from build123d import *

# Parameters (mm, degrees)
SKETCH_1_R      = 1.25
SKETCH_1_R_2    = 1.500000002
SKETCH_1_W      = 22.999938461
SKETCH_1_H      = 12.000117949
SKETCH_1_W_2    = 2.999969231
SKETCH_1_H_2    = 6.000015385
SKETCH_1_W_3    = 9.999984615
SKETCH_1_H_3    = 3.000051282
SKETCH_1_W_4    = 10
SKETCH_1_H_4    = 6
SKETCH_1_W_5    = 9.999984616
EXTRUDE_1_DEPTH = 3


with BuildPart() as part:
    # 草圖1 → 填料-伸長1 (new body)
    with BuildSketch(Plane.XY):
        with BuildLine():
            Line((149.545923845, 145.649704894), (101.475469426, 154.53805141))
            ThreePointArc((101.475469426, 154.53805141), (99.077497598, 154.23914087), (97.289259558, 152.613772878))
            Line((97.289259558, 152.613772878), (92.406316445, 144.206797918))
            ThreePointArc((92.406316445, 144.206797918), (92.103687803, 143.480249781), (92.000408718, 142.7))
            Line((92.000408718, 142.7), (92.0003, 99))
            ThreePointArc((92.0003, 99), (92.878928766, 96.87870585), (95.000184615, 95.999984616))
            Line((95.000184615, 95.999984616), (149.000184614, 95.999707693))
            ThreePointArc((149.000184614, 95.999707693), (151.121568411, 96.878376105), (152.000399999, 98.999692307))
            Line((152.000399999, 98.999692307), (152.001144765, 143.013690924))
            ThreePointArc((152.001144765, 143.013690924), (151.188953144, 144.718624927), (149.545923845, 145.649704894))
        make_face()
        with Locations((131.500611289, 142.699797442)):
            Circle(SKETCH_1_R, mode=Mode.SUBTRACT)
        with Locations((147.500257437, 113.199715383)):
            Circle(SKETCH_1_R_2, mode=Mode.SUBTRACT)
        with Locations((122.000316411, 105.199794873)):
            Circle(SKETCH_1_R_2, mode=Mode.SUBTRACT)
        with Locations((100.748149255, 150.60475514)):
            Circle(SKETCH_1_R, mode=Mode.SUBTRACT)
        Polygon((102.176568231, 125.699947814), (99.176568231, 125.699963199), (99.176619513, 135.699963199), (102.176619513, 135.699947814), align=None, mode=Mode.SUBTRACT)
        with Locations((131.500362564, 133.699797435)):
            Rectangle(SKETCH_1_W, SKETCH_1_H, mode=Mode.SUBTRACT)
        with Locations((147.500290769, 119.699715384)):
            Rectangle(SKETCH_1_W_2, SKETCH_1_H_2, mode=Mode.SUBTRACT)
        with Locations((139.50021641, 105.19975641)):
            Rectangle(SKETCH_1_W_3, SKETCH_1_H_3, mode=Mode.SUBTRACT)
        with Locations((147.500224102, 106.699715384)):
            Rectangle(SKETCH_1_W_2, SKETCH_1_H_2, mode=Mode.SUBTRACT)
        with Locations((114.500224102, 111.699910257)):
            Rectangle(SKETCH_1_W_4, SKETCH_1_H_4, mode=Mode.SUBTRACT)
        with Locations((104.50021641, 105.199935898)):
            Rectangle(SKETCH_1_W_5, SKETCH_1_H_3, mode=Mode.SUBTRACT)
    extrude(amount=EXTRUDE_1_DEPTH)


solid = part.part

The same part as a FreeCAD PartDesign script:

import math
import FreeCAD as App
import Part
import Sketcher
from FreeCAD import Vector
Q = App.Units.Quantity

doc = App.newDocument("Part")
body = doc.addObject("PartDesign::Body", "Body")

sketch1 = doc.addObject("Sketcher::SketchObject", "Sketch")
body.addObject(sketch1)
sketch1.AttachmentSupport = (doc.XY_Plane, [""])
sketch1.MapMode = "FlatFace"
sketch1.addGeometry([
    Part.LineSegment(Vector(149.5, 145.6, 0), Vector(101.5, 154.5, 0)),
    Part.ArcOfCircle(Part.Circle(Vector(100.7, 150.6, 0), Vector(0, 0, 1), 4), math.radians(80), math.radians(150)),
    Part.LineSegment(Vector(97.3, 152.6, 0), Vector(92.4, 144.2, 0)),
    Part.ArcOfCircle(Part.Circle(Vector(95, 142.7, 0), Vector(0, 0, 1), 3), math.radians(150), math.radians(180)),
    Part.LineSegment(Vector(92, 142.7, 0), Vector(92, 99, 0)),
    Part.ArcOfCircle(Part.Circle(Vector(95, 99, 0), Vector(0, 0, 1), 3), math.radians(180), math.radians(270)),
    Part.LineSegment(Vector(95, 96, 0), Vector(149, 96, 0)),
    Part.ArcOfCircle(Part.Circle(Vector(149, 99, 0), Vector(0, 0, 1), 3), math.radians(-90), math.radians(0)),
    Part.LineSegment(Vector(152, 99, 0), Vector(152, 143, 0)),
    Part.ArcOfCircle(Part.Circle(Vector(148.9, 142.6, 0), Vector(0, 0, 1), 3.1), math.radians(8), math.radians(78)),
    Part.LineSegment(Vector(109.5, 103.7, 0), Vector(99.5, 103.7, 0)),
    Part.LineSegment(Vector(99.5, 103.7, 0), Vector(99.5, 106.7, 0)),
    Part.LineSegment(Vector(99.5, 106.7, 0), Vector(109.5, 106.7, 0)),
    Part.LineSegment(Vector(109.5, 106.7, 0), Vector(109.5, 103.7, 0)),
    Part.Circle(Vector(122, 105.2, 0), Vector(0, 0, 1), 1.5),
    Part.LineSegment(Vector(119.5, 108.7, 0), Vector(109.5, 108.7, 0)),
    Part.LineSegment(Vector(109.5, 108.7, 0), Vector(109.5, 114.7, 0)),
    Part.LineSegment(Vector(109.5, 114.7, 0), Vector(119.5, 114.7, 0)),
    Part.LineSegment(Vector(119.5, 114.7, 0), Vector(119.5, 108.7, 0)),
    Part.LineSegment(Vector(144.5, 103.7, 0), Vector(134.5, 103.7, 0)),
    Part.LineSegment(Vector(134.5, 103.7, 0), Vector(134.5, 106.7, 0)),
    Part.LineSegment(Vector(134.5, 106.7, 0), Vector(144.5, 106.7, 0)),
    Part.LineSegment(Vector(144.5, 106.7, 0), Vector(144.5, 103.7, 0)),
    Part.LineSegment(Vector(149, 103.7, 0), Vector(146, 103.7, 0)),
    Part.LineSegment(Vector(146, 103.7, 0), Vector(146, 109.7, 0)),
    Part.LineSegment(Vector(146, 109.7, 0), Vector(149, 109.7, 0)),
    Part.LineSegment(Vector(149, 109.7, 0), Vector(149, 103.7, 0)),
    Part.Circle(Vector(147.5, 113.2, 0), Vector(0, 0, 1), 1.5),
    Part.LineSegment(Vector(149, 116.7, 0), Vector(146, 116.7, 0)),
    Part.LineSegment(Vector(146, 116.7, 0), Vector(146, 122.7, 0)),
    Part.LineSegment(Vector(146, 122.7, 0), Vector(149, 122.7, 0)),
    Part.LineSegment(Vector(149, 122.7, 0), Vector(149, 116.7, 0)),
    Part.LineSegment(Vector(102.2, 135.7, 0), Vector(102.2, 125.7, 0)),
    Part.LineSegment(Vector(102.2, 125.7, 0), Vector(99.2, 125.7, 0)),
    Part.LineSegment(Vector(99.2, 125.7, 0), Vector(99.2, 135.7, 0)),
    Part.LineSegment(Vector(99.2, 135.7, 0), Vector(102.2, 135.7, 0)),
    Part.Circle(Vector(100.7, 150.6, 0), Vector(0, 0, 1), 1.2),
    Part.LineSegment(Vector(143, 127.7, 0), Vector(120, 127.7, 0)),
    Part.LineSegment(Vector(120, 127.7, 0), Vector(120, 139.7, 0)),
    Part.LineSegment(Vector(120, 139.7, 0), Vector(143, 139.7, 0)),
    Part.LineSegment(Vector(143, 139.7, 0), Vector(143, 127.7, 0)),
    Part.Circle(Vector(131.5, 142.7, 0), Vector(0, 0, 1), 1.2),
], False)
sketch1.addConstraint([
    Sketcher.Constraint("Coincident", 0, 2, 1, 1),
    Sketcher.Constraint("Coincident", 1, 2, 2, 1),
    Sketcher.Constraint("Coincident", 2, 2, 3, 1),
    Sketcher.Constraint("Coincident", 3, 2, 4, 1),
    Sketcher.Constraint("Coincident", 4, 2, 5, 1),
    Sketcher.Constraint("Coincident", 5, 2, 6, 1),
    Sketcher.Constraint("Coincident", 6, 2, 7, 1),
    Sketcher.Constraint("Coincident", 7, 2, 8, 1),
    Sketcher.Constraint("Coincident", 8, 2, 9, 1),
    Sketcher.Constraint("Coincident", 9, 2, 0, 1),
    Sketcher.Constraint("Coincident", 10, 2, 11, 1),
    Sketcher.Constraint("Coincident", 11, 2, 12, 1),
    Sketcher.Constraint("Coincident", 12, 2, 13, 1),
    Sketcher.Constraint("Coincident", 13, 2, 10, 1),
    Sketcher.Constraint("Coincident", 15, 2, 16, 1),
    Sketcher.Constraint("Coincident", 16, 2, 17, 1),
    Sketcher.Constraint("Coincident", 17, 2, 18, 1),
    Sketcher.Constraint("Coincident", 18, 2, 15, 1),
    Sketcher.Constraint("Coincident", 19, 2, 20, 1),
    Sketcher.Constraint("Coincident", 20, 2, 21, 1),
    Sketcher.Constraint("Coincident", 21, 2, 22, 1),
    Sketcher.Constraint("Coincident", 22, 2, 19, 1),
    Sketcher.Constraint("Coincident", 23, 2, 24, 1),
    Sketcher.Constraint("Coincident", 24, 2, 25, 1),
    Sketcher.Constraint("Coincident", 25, 2, 26, 1),
    Sketcher.Constraint("Coincident", 26, 2, 23, 1),
    Sketcher.Constraint("Coincident", 28, 2, 29, 1),
    Sketcher.Constraint("Coincident", 29, 2, 30, 1),
    Sketcher.Constraint("Coincident", 30, 2, 31, 1),
    Sketcher.Constraint("Coincident", 31, 2, 28, 1),
    Sketcher.Constraint("Coincident", 32, 2, 33, 1),
    Sketcher.Constraint("Coincident", 33, 2, 34, 1),
    Sketcher.Constraint("Coincident", 34, 2, 35, 1),
    Sketcher.Constraint("Coincident", 35, 2, 32, 1),
    Sketcher.Constraint("Coincident", 37, 2, 38, 1),
    Sketcher.Constraint("Coincident", 38, 2, 39, 1),
    Sketcher.Constraint("Coincident", 39, 2, 40, 1),
    Sketcher.Constraint("Coincident", 40, 2, 37, 1),
    Sketcher.Constraint("Horizontal", 10),
    Sketcher.Constraint("Vertical", 11),
    Sketcher.Constraint("Horizontal", 12),
    Sketcher.Constraint("Vertical", 13),
    Sketcher.Constraint("Horizontal", 15),
    Sketcher.Constraint("Vertical", 16),
    Sketcher.Constraint("Horizontal", 17),
    Sketcher.Constraint("Vertical", 18),
    Sketcher.Constraint("Horizontal", 19),
    Sketcher.Constraint("Vertical", 20),
    Sketcher.Constraint("Horizontal", 21),
    Sketcher.Constraint("Vertical", 22),
    Sketcher.Constraint("Horizontal", 23),
    Sketcher.Constraint("Vertical", 24),
    Sketcher.Constraint("Horizontal", 25),
    Sketcher.Constraint("Vertical", 26),
    Sketcher.Constraint("Horizontal", 28),
    Sketcher.Constraint("Vertical", 29),
    Sketcher.Constraint("Horizontal", 30),
    Sketcher.Constraint("Vertical", 31),
    Sketcher.Constraint("Horizontal", 37),
    Sketcher.Constraint("Vertical", 38),
    Sketcher.Constraint("Horizontal", 39),
    Sketcher.Constraint("Vertical", 40),
    Sketcher.Constraint("Equal", 14, 27),
    Sketcher.Constraint("Equal", 36, 41),
    Sketcher.Constraint("Perpendicular", 6, 32),
    Sketcher.Constraint("Perpendicular", 32, 33),
    Sketcher.Constraint("Perpendicular", 33, 34),
    Sketcher.Constraint("Perpendicular", 34, 35),
    Sketcher.Constraint("Equal", 12, 19),
    Sketcher.Constraint("Equal", 25, 28),
    Sketcher.Constraint("Equal", 13, 20),
    Sketcher.Constraint("Equal", 26, 29),
    Sketcher.Constraint("Diameter", 14, Q("3 mm")),
    Sketcher.Constraint("Diameter", 36, Q("2.5 mm")),
    Sketcher.Constraint("DistanceX", 15, 2, 15, 1, Q("10 mm")),
    Sketcher.Constraint("DistanceY", 16, 1, 16, 2, Q("6 mm")),
    Sketcher.Constraint("Distance", 6, Q("54 mm")),
    Sketcher.Constraint("Distance", 32, Q("10 mm")),
    Sketcher.Constraint("Distance", 33, Q("3 mm")),
    Sketcher.Constraint("DistanceY", -1, 1, 4, 2, Q("99 mm")),
    Sketcher.Constraint("DistanceY", 13, 2, 15, 2, Q("5 mm")),
    Sketcher.Constraint("DistanceX", 11, 2, 15, 2, Q("10 mm")),
    Sketcher.Constraint("DistanceX", 18, 2, 19, 2, Q("15 mm")),
    Sketcher.Constraint("DistanceY", 23, 2, 28, 2, Q("13 mm")),
    Sketcher.Constraint("DistanceY", 11, 2, 33, 2, Q("19.000002 mm")),
    Sketcher.Constraint("Distance", 4, Q("43.7 mm")),
    Sketcher.Constraint("DistanceY", 6, 2, 23, 2, Q("7.7 mm")),
    Sketcher.Constraint("DistanceX", 21, 2, 25, 2, Q("4.5 mm")),
    Sketcher.Constraint("Radius", 1, Q("4.000052 mm")),
    Sketcher.Constraint("Radius", 7, Q("3.00024 mm")),
    Sketcher.Constraint("Distance", 8, Q("44.013999 mm")),
    Sketcher.Constraint("Radius", 3, Q("3.000427 mm")),
    Sketcher.Constraint("Radius", 5, Q("2.999984 mm")),
    Sketcher.Constraint("Radius", 9, Q("3.141134 mm")),
    Sketcher.Constraint("DistanceX", 23, 2, 23, 1, Q("2.999969 mm")),
    Sketcher.Constraint("DistanceX", 37, 2, 37, 1, Q("22.999938 mm")),
    Sketcher.Constraint("DistanceY", 11, 1, 11, 2, Q("3.000051 mm")),
    Sketcher.Constraint("DistanceX", -1, 1, 4, 2, Q("92.0003 mm")),
    Sketcher.Constraint("DistanceX", -1, 1, 7, 2, Q("152.0004 mm")),
    Sketcher.Constraint("DistanceX", 41, 3, 9, 3, Q("17.3898 mm")),
    Sketcher.Constraint("Distance", 2, Q("9.722158 mm")),
    Sketcher.Constraint("DistanceX", 10, 2, 10, 1, Q("9.999985 mm")),
    Sketcher.Constraint("DistanceY", 24, 1, 24, 2, Q("6.000015 mm")),
    Sketcher.Constraint("DistanceY", 38, 1, 38, 2, Q("12.000118 mm")),
    Sketcher.Constraint("DistanceY", -1, 1, 5, 3, Q("98.999969 mm")),
    Sketcher.Constraint("DistanceX", -1, 1, 9, 3, Q("148.890411 mm")),
    Sketcher.Constraint("DistanceY", -1, 1, 9, 3, Q("142.57773 mm")),
    Sketcher.Constraint("DistanceX", -1, 1, 36, 3, Q("100.748149 mm")),
    Sketcher.Constraint("DistanceX", -1, 1, 0, 2, Q("101.475469 mm")),
    Sketcher.Constraint("DistanceY", -1, 1, 0, 2, Q("154.538051 mm")),
    Sketcher.Constraint("DistanceX", -1, 1, 1, 2, Q("97.28926 mm")),
    Sketcher.Constraint("DistanceX", -1, 1, 3, 2, Q("92.000409 mm")),
    Sketcher.Constraint("DistanceY", -1, 1, 8, 2, Q("143.013691 mm")),
    Sketcher.Constraint("DistanceY", -1, 1, 10, 2, Q("103.69991 mm")),
    Sketcher.Constraint("DistanceX", -1, 1, 12, 2, Q("109.500209 mm")),
    Sketcher.Constraint("DistanceY", -1, 1, 19, 2, Q("103.699731 mm")),
    Sketcher.Constraint("DistanceX", -1, 1, 32, 2, Q("102.176568 mm")),
    Sketcher.Constraint("DistanceX", -1, 1, 34, 2, Q("99.17662 mm")),
    Sketcher.Constraint("DistanceY", -1, 1, 37, 2, Q("127.699738 mm")),
    Sketcher.Constraint("DistanceX", -1, 1, 39, 2, Q("143.000332 mm")),
    Sketcher.Constraint("DistanceX", 3, 3, 1, 3, Q("5.747319 mm")),
    Sketcher.Constraint("DistanceX", 3, 3, 14, 3, Q("26.999481 mm")),
    Sketcher.Constraint("DistanceY", 14, 3, 3, 3, Q("37.500009 mm")),
    Sketcher.Constraint("DistanceX", 14, 3, 27, 3, Q("25.499941 mm")),
    Sketcher.Constraint("DistanceY", 14, 3, 27, 3, Q("7.999921 mm")),
    Sketcher.Constraint("DistanceY", 3, 3, 36, 3, Q("7.904951 mm")),
    Sketcher.Constraint("DistanceY", 41, 3, 1, 3, Q("7.90488 mm")),
    Sketcher.Constraint("DistanceY", 3, 3, 1, 2, Q("9.913969 mm")),
    Sketcher.Constraint("DistanceX", 5, 2, 14, 3, Q("27.000132 mm")),
    Sketcher.Constraint("DistanceX", 9, 2, 8, 2, Q("2.455221 mm")),
    Sketcher.Constraint("DistanceX", 28, 2, 27, 3, Q("1.499951 mm")),
])
pad1 = doc.addObject("PartDesign::Pad", "Pad")
body.addObject(pad1)
pad1.Profile = sketch1
pad1.Length = 3

doc.recompute()
